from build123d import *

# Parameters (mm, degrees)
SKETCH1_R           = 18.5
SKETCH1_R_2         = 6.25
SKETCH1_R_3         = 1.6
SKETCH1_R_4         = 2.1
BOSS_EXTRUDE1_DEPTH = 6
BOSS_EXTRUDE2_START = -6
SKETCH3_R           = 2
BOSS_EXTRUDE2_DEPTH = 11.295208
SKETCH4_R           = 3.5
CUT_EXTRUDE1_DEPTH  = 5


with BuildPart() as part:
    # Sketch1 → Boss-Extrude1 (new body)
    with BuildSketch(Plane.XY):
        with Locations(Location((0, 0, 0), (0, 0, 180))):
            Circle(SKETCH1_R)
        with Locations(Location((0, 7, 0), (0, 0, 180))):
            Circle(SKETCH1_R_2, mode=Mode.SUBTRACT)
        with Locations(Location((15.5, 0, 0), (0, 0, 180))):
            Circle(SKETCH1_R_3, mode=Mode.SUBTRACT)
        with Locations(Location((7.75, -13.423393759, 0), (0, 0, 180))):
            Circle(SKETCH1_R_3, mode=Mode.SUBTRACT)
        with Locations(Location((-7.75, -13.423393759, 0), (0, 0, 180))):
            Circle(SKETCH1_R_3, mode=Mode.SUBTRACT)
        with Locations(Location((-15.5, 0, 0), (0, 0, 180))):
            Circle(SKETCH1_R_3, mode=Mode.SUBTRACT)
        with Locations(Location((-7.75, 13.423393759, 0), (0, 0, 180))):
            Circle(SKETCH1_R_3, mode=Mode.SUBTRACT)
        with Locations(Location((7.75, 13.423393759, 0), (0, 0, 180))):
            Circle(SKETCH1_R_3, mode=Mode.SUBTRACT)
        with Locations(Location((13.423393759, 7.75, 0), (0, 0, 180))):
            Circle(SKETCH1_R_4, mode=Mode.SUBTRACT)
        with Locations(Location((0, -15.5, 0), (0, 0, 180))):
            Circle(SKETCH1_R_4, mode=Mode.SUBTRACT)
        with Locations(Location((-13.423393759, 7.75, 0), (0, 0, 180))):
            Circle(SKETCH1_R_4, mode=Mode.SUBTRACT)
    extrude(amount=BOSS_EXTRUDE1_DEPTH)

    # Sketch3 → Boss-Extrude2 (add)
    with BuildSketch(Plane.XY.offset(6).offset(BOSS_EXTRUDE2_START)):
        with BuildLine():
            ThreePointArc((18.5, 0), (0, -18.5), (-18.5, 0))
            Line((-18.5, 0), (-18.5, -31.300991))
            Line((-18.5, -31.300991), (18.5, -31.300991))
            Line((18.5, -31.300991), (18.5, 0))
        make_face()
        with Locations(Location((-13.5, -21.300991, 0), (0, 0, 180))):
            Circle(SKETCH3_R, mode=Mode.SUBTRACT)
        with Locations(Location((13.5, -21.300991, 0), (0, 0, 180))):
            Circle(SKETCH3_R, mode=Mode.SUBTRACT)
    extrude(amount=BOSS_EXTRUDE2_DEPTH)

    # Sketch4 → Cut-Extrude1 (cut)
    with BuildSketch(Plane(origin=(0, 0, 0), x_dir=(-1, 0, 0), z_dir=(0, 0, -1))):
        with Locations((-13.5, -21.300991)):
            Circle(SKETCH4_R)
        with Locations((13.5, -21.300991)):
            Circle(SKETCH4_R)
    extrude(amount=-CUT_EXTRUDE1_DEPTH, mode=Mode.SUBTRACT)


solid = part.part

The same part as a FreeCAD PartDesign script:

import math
import FreeCAD as App
import Part
import Sketcher
from FreeCAD import Vector
Q = App.Units.Quantity

doc = App.newDocument("Part")
body = doc.addObject("PartDesign::Body", "Body")

sketch1 = body.newObject("Sketcher::SketchObject", "Sketch")
sketch1.AttachmentSupport = (doc.getObject("XY_Plane"), [""])
sketch1.MapMode = "FlatFace"
sketch1.addGeometry(Part.Circle(Vector(0, 0, 0), Vector(0, 0, 1), 18.5), False)
sketch1.addGeometry(Part.Circle(Vector(13.4, 7.8, 0), Vector(0, 0, 1), 2.1), False)
sketch1.addGeometry(Part.Circle(Vector(7.8, 13.4, 0), Vector(0, 0, 1), 1.6), False)
sketch1.addGeometry(Part.Circle(Vector(15.5, 0, 0), Vector(0, 0, 1), 1.6), False)
sketch1.addGeometry(Part.Circle(Vector(-7.8, 13.4, 0), Vector(0, 0, 1), 1.6), False)
sketch1.addGeometry(Part.Circle(Vector(0, 7, 0), Vector(0, 0, 1), 6.2), False)
sketch1.addGeometry(Part.Circle(Vector(-13.4, 7.8, 0), Vector(0, 0, 1), 2.1), False)
sketch1.addGeometry(Part.Circle(Vector(-15.5, 0, 0), Vector(0, 0, 1), 1.6), False)
sketch1.addGeometry(Part.Circle(Vector(7.8, -13.4, 0), Vector(0, 0, 1), 1.6), False)
sketch1.addGeometry(Part.Circle(Vector(0, -15.5, 0), Vector(0, 0, 1), 2.1), False)
sketch1.addGeometry(Part.Circle(Vector(-7.8, -13.4, 0), Vector(0, 0, 1), 1.6), False)
sketch1.addConstraint(Sketcher.Constraint("Coincident", 0, 3, -1, 1))
sketch1.addConstraint(Sketcher.Constraint("Equal", 2, 3))
sketch1.addConstraint(Sketcher.Constraint("Equal", 3, 4))
sketch1.addConstraint(Sketcher.Constraint("Equal", 1, 6))
sketch1.addConstraint(Sketcher.Constraint("Equal", 4, 7))
sketch1.addConstraint(Sketcher.Constraint("Equal", 7, 8))
sketch1.addConstraint(Sketcher.Constraint("Equal", 6, 9))
sketch1.addConstraint(Sketcher.Constraint("Equal", 8, 10))
sketch1.addConstraint(Sketcher.Constraint("Symmetric", 3, 3, 7, 3, -1, 1))
sketch1.addConstraint(Sketcher.Constraint("Symmetric", 4, 3, 8, 3, -1, 1))
sketch1.addConstraint(Sketcher.Constraint("Symmetric", 2, 3, 10, 3, -1, 1))
sketch1.addConstraint(Sketcher.Constraint("Symmetric", 2, 3, 4, 3, -2))
sketch1.addConstraint(Sketcher.Constraint("Symmetric", 1, 3, 6, 3, -2))
sketch1.addConstraint(Sketcher.Constraint("PointOnObject", 3, 3, -1))
sketch1.addConstraint(Sketcher.Constraint("PointOnObject", 5, 3, -2))
sketch1.addConstraint(Sketcher.Constraint("PointOnObject", 9, 3, -2))
sketch1.addConstraint(Sketcher.Constraint("Diameter", 0, Q("37 mm")))
sketch1.addConstraint(Sketcher.Constraint("Diameter", 1, Q("4.2 mm")))
sketch1.addConstraint(Sketcher.Constraint("Diameter", 2, Q("3.2 mm")))
sketch1.addConstraint(Sketcher.Constraint("Diameter", 5, Q("12.5 mm")))
sketch1.addConstraint(Sketcher.Constraint("DistanceY", -1, 1, 5, 3, Q("7 mm")))
sketch1.addConstraint(Sketcher.Constraint("DistanceX", -1, 1, 3, 3, Q("15.5 mm")))
sketch1.addConstraint(Sketcher.Constraint("DistanceY", 9, 3, -1, 1, Q("15.5 mm")))
sketch1.addConstraint(Sketcher.Constraint("DistanceX", 4, 3, 2, 3, Q("15.5 mm")))
sketch1.addConstraint(Sketcher.Constraint("DistanceY", -1, 1, 1, 3, Q("7.75 mm")))
sketch1.addConstraint(Sketcher.Constraint("DistanceX", -1, 1, 1, 3, Q("13.423394 mm")))
sketch1.addConstraint(Sketcher.Constraint("DistanceY", -1, 1, 2, 3, Q("13.423394 mm")))
pad1 = body.newObject("PartDesign::Pad", "Pad")
pad1.Profile = sketch1
pad1.Length = 6

sketch2 = body.newObject("Sketcher::SketchObject", "Sketch001")
sketch2.AttachmentSupport = (doc.getObject("XY_Plane"), [""])
sketch2.MapMode = "FlatFace"
sketch2.addGeometry(Part.ArcOfCircle(Part.Circle(Vector(0, 0, 0), Vector(0, 0, 1), 18.5), math.radians(180), math.radians(360)), False)
sketch2.addGeometry(Part.LineSegment(Vector(-18.5, 0, 0), Vector(-18.5, -31.3, 0)), False)
sketch2.addGeometry(Part.LineSegment(Vector(-18.5, -31.3, 0), Vector(18.5, -31.3, 0)), False)
sketch2.addGeometry(Part.LineSegment(Vector(18.5, -31.3, 0), Vector(18.5, 0, 0)), False)
sketch2.addGeometry(Part.Circle(Vector(-13.5, -21.3, 0), Vector(0, 0, 1), 2), False)
sketch2.addGeometry(Part.Circle(Vector(13.5, -21.3, 0), Vector(0, 0, 1), 2), False)
sketch2.addConstraint(Sketcher.Constraint("Tangent", 0, 1, 1, 1))
sketch2.addConstraint(Sketcher.Constraint("Coincident", 1, 2, 2, 1))
sketch2.addConstraint(Sketcher.Constraint("Coincident", 2, 2, 3, 1))
sketch2.addConstraint(Sketcher.Constraint("Tangent", 3, 2, 0, 2))
sketch2.addConstraint(Sketcher.Constraint("Vertical", 1))
sketch2.addConstraint(Sketcher.Constraint("Horizontal", 2))
sketch2.addConstraint(Sketcher.Constraint("Vertical", 3))
sketch2.addConstraint(Sketcher.Constraint("Coincident", 0, 3, -1, 1))
sketch2.addConstraint(Sketcher.Constraint("Equal", 4, 5))
sketch2.addConstraint(Sketcher.Constraint("Symmetric", 4, 3, 5, 3, -2))
sketch2.addConstraint(Sketcher.Constraint("Diameter", 4, Q("4 mm")))
sketch2.addConstraint(Sketcher.Constraint("Radius", 0, Q("18.5 mm")))
sketch2.addConstraint(Sketcher.Constraint("DistanceX", 4, 3, 5, 3, Q("27 mm")))
sketch2.addConstraint(Sketcher.Constraint("DistanceY", 1, 2, 4, 3, Q("10 mm")))
sketch2.addConstraint(Sketcher.Constraint("DistanceY", 1, 2, 1, 1, Q("31.300991 mm")))
pad2 = body.newObject("PartDesign::Pad", "Pad001")
pad2.Profile = sketch2
pad2.Length = 11.295208

sketch3 = body.newObject("Sketcher::SketchObject", "Sketch002")
sketch3.AttachmentSupport = (doc.getObject("XY_Plane"), [""])
sketch3.MapMode = "FlatFace"
sketch3.addGeometry(Part.Circle(Vector(13.5, -21.3, 0), Vector(0, 0, 1), 3.5), False)
sketch3.addGeometry(Part.Circle(Vector(-13.5, -21.3, 0), Vector(0, 0, 1), 3.5), False)
sketch3.addConstraint(Sketcher.Constraint("Equal", 0, 1))
sketch3.addConstraint(Sketcher.Constraint("Symmetric", 0, 3, 1, 3, -2))
sketch3.addConstraint(Sketcher.Constraint("Diameter", 0, Q("7 mm")))
sketch3.addConstraint(Sketcher.Constraint("DistanceX", 1, 3, 0, 3, Q("27 mm")))
sketch3.addConstraint(Sketcher.Constraint("DistanceY", 0, 3, -1, 1, Q("21.300991 mm")))
pocket1 = body.newObject("PartDesign::Pocket", "Pocket")
pocket1.Profile = sketch3
pocket1.Length = 5
pocket1.Reversed = True

doc.recompute()
